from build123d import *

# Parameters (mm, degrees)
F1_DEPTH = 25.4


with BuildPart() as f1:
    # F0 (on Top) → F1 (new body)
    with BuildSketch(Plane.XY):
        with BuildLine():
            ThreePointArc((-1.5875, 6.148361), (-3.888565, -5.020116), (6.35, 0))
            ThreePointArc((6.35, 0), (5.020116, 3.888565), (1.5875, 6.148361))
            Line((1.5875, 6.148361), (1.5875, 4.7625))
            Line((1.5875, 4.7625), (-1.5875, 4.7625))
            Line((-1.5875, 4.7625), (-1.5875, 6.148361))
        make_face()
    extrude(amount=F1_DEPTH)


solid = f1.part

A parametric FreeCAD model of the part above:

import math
import FreeCAD as App
import Part
import Sketcher
from FreeCAD import Vector
Q = App.Units.Quantity

doc = App.newDocument("Part")
body = doc.addObject("PartDesign::Body", "Body")

sketch1 = body.newObject("Sketcher::SketchObject", "Sketch")
sketch1.AttachmentSupport = (doc.getObject("XY_Plane"), [""])
sketch1.MapMode = "FlatFace"
sketch1.addGeometry([
    Part.ArcOfCircle(Part.Circle(Vector(0, 0, 0), Vector(0, 0, 1), 6.4), math.radians(104), math.radians(360)),
    Part.ArcOfCircle(Part.Circle(Vector(0, 0, 0), Vector(0, 0, 1), 6.3), math.radians(0), math.radians(76)),
    Part.LineSegment(Vector(1.6, 6.1, 0), Vector(1.6, 4.8, 0)),
    Part.LineSegment(Vector(1.6, 4.8, 0), Vector(-1.6, 4.8, 0)),
    Part.LineSegment(Vector(-1.6, 4.8, 0), Vector(-1.6, 6.1, 0)),
], False)
sketch1.addConstraint([
    Sketcher.Constraint("Tangent", 0, 2, 1, 1),
    Sketcher.Constraint("Coincident", 1, 2, 2, 1),
    Sketcher.Constraint("Coincident", 2, 2, 3, 1),
    Sketcher.Constraint("Coincident", 3, 2, 4, 1),
    Sketcher.Constraint("Coincident", 4, 2, 0, 1),
    Sketcher.Constraint("Vertical", 2),
    Sketcher.Constraint("Horizontal", 3),
    Sketcher.Constraint("Vertical", 4),
    Sketcher.Constraint("Coincident", 0, 3, -1, 1),
    Sketcher.Constraint("Equal", 0, 1),
    Sketcher.Constraint("PointOnObject", 0, 2, -1),
    Sketcher.Constraint("Horizontal", 1, 2, 4, 2),
    Sketcher.Constraint("Radius", 0, Q("0.25 in")),
    Sketcher.Constraint("DistanceX", 3, 2, 3, 1, Q("0.125 in")),
    Sketcher.Constraint("DistanceY", -1, 1, 2, 2, Q("0.1875 in")),
])
pad1 = body.newObject("PartDesign::Pad", "Pad")
pad1.Profile = sketch1
pad1.Length = Q("1 in")

doc.recompute()
